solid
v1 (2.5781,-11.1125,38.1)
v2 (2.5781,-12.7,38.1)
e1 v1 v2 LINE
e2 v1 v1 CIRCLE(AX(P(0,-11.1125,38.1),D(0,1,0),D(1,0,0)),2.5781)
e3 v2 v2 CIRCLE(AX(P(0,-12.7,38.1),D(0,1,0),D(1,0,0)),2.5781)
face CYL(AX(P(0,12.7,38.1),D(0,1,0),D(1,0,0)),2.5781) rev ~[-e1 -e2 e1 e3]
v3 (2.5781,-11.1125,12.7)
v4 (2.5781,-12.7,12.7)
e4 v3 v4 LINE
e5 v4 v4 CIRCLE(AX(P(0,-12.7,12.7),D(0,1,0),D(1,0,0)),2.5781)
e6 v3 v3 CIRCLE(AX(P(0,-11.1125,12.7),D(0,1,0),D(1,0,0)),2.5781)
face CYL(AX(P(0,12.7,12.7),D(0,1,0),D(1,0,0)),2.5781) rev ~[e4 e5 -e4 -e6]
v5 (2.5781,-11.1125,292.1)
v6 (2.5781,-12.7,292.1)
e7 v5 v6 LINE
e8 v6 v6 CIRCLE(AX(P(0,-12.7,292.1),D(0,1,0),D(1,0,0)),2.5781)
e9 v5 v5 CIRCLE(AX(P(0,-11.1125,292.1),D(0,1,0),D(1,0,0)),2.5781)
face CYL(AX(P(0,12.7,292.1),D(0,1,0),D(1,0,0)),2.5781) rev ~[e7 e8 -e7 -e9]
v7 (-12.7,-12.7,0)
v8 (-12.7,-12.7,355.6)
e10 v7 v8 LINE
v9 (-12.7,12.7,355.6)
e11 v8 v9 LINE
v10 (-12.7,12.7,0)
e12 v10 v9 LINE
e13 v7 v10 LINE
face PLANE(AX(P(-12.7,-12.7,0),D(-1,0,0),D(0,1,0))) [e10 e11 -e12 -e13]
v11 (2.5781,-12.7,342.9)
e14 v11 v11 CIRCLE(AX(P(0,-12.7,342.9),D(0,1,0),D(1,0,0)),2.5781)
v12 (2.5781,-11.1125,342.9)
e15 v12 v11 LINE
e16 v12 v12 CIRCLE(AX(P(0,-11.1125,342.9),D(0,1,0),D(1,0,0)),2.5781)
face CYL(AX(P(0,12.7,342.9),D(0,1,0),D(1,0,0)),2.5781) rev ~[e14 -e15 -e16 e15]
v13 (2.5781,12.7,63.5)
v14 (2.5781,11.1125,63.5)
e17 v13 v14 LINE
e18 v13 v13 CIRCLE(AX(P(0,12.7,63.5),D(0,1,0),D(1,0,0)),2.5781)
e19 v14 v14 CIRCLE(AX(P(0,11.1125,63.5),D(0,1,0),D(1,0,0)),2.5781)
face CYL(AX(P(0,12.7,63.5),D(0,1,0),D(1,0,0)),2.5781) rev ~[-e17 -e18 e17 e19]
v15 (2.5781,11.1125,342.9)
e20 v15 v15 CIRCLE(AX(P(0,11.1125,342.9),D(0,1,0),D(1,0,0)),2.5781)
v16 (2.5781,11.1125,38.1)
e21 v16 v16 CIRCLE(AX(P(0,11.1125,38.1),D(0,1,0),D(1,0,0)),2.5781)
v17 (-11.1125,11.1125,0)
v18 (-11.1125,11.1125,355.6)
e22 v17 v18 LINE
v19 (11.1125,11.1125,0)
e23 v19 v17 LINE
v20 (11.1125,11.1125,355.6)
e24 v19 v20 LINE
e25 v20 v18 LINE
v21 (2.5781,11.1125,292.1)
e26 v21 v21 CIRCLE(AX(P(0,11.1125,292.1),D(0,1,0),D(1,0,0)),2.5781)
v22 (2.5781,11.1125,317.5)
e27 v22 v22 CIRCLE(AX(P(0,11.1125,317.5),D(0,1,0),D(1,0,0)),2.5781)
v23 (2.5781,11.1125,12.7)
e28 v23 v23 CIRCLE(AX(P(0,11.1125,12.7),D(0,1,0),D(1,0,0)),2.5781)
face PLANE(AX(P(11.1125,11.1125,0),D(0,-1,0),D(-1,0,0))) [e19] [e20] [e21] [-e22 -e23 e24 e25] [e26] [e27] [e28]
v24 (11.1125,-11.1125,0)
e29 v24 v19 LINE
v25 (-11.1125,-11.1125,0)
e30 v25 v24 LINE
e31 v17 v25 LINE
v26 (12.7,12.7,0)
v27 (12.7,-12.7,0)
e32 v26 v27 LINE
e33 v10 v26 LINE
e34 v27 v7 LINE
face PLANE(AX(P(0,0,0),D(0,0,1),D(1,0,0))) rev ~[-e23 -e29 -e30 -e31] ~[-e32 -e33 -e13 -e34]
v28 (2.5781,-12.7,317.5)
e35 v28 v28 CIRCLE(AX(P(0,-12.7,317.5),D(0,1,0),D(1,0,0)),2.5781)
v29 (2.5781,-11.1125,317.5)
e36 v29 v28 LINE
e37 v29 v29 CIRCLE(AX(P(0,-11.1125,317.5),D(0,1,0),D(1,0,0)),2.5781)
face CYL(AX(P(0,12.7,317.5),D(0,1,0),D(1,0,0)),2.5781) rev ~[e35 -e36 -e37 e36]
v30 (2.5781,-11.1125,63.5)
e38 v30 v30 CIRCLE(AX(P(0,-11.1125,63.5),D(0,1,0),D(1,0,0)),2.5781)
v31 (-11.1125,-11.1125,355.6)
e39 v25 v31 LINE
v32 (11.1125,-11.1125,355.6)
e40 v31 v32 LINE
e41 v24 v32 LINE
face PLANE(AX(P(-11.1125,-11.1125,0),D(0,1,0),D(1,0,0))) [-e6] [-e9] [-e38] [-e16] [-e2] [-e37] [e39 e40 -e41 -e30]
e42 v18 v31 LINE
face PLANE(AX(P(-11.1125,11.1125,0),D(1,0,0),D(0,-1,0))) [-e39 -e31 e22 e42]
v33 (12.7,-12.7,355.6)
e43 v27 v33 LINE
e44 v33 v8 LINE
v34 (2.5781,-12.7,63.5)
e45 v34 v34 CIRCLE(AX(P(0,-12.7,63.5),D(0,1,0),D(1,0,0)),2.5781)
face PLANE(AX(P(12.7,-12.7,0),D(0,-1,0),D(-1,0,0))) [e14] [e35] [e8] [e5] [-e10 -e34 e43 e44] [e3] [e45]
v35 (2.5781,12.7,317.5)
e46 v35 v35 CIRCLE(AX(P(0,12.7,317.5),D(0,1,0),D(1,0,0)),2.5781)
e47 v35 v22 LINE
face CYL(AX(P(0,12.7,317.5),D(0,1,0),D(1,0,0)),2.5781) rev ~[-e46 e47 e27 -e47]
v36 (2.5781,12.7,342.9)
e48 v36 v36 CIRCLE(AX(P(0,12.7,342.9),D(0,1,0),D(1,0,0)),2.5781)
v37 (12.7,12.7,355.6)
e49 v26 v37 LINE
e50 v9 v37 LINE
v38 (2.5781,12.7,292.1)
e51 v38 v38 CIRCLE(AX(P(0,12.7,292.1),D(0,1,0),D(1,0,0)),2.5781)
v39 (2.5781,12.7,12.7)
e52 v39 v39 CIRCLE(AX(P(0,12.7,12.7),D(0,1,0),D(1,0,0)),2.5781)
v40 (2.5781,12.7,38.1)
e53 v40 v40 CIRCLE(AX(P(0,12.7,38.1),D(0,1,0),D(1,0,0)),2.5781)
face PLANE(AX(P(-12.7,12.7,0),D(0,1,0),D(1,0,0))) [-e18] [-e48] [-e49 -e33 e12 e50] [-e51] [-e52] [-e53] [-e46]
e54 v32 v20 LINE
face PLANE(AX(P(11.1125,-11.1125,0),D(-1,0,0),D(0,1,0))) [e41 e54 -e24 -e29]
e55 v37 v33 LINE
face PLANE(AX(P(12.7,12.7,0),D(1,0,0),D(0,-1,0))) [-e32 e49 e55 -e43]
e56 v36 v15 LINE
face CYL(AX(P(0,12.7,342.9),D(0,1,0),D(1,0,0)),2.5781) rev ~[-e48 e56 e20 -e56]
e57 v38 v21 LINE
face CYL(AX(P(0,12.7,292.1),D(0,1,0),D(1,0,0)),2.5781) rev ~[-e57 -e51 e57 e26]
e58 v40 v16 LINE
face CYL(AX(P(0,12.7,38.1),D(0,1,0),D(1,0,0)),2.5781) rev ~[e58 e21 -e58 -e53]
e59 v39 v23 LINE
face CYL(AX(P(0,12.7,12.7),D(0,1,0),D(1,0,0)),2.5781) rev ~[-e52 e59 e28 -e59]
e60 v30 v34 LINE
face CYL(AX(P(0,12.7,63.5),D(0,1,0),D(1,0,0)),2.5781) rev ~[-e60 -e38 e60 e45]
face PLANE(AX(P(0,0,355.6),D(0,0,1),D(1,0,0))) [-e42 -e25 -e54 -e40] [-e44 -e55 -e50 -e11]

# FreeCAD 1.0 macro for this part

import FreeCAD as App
import Part
import Sketcher
from FreeCAD import Vector
Q = App.Units.Quantity

doc = App.newDocument("Part")
params = doc.addObject("Spreadsheet::Sheet", "Params")
for row, (alias, value) in enumerate([
    ("sketch1_width", "1 in"),
    ("pad1_length", "14 in"),
    ("sketch2_diameter", "0.203 in"),
], start=1):
    params.set(f"A{row}", alias)
    params.set(f"B{row}", "=" + value)
    params.setAlias(f"B{row}", alias)

body = doc.addObject("PartDesign::Body", "Body")

# Sketch on XY plane
sketch1 = doc.addObject("Sketcher::SketchObject", "Sketch")
body.addObject(sketch1)
sketch1.AttachmentSupport = (doc.XY_Plane, [""])
sketch1.MapMode = "FlatFace"
sketch1.addGeometry([
    Part.LineSegment(Vector(-13, 13, 0), Vector(-13, -13, 0)),  # 0
    Part.LineSegment(Vector(-13, -13, 0), Vector(13, -13, 0)),  # 1
    Part.LineSegment(Vector(13, -13, 0), Vector(13, 13, 0)),  # 2
    Part.LineSegment(Vector(13, 13, 0), Vector(-13, 13, 0)),  # 3
    Part.LineSegment(Vector(-11, 11, 0), Vector(11, 11, 0)),  # 4
    Part.LineSegment(Vector(11, 11, 0), Vector(11, -11, 0)),  # 5
    Part.LineSegment(Vector(11, -11, 0), Vector(-11, -11, 0)),  # 6
    Part.LineSegment(Vector(-11, -11, 0), Vector(-11, 11, 0)),  # 7
], False)
sketch1.addConstraint([
    Sketcher.Constraint("Coincident", 0, 2, 1, 1),
    Sketcher.Constraint("Coincident", 1, 2, 2, 1),
    Sketcher.Constraint("Coincident", 2, 2, 3, 1),
    Sketcher.Constraint("Coincident", 3, 2, 0, 1),
    Sketcher.Constraint("Coincident", 4, 2, 5, 1),
    Sketcher.Constraint("Coincident", 5, 2, 6, 1),
    Sketcher.Constraint("Coincident", 6, 2, 7, 1),
    Sketcher.Constraint("Coincident", 7, 2, 4, 1),
    Sketcher.Constraint("Vertical", 0),
    Sketcher.Constraint("Horizontal", 1),
    Sketcher.Constraint("Vertical", 2),
    Sketcher.Constraint("Horizontal", 3),
    Sketcher.Constraint("Horizontal", 4),
    Sketcher.Constraint("Vertical", 5),
    Sketcher.Constraint("Horizontal", 6),
    Sketcher.Constraint("Vertical", 7),
    Sketcher.Constraint("Symmetric", 0, 2, 2, 2, -1, 1),
    Sketcher.Constraint("Symmetric", 4, 2, 6, 2, -1, 1),
    Sketcher.Constraint("Equal", 3, 0),
    Sketcher.Constraint("Equal", 6, 5),
    Sketcher.Constraint("DistanceX", 1, 1, 1, 2, Q("1 in")),
    Sketcher.Constraint("DistanceX", 4, 2, 2, 2, Q("0.0625 in")),
])
sketch1.setExpression("Constraints[20]", "Params.sketch1_width")
pad1 = doc.addObject("PartDesign::Pad", "Pad")
body.addObject(pad1)
pad1.Profile = sketch1
pad1.setExpression("Length", "Params.pad1_length")

# Sketch on XZ plane
sketch2 = doc.addObject("Sketcher::SketchObject", "Sketch001")
body.addObject(sketch2)
sketch2.AttachmentSupport = (doc.XZ_Plane, [""])
sketch2.MapMode = "FlatFace"
sketch2.AttachmentOffset = App.Placement(Vector(0, 0, -0.5 * 25.4), App.Rotation())
sketch2.addGeometry([
    Part.Circle(Vector(0, 12.7, 0), Vector(0, 0, 1), 2.6),  # 0
    Part.Circle(Vector(0, 38.1, 0), Vector(0, 0, 1), 2.6),  # 1
    Part.Circle(Vector(0, 63.5, 0), Vector(0, 0, 1), 2.6),  # 2
    Part.Circle(Vector(0, 342.9, 0), Vector(0, 0, 1), 2.6),  # 3
    Part.Circle(Vector(0, 317.5, 0), Vector(0, 0, 1), 2.6),  # 4
    Part.Circle(Vector(0, 292.1, 0), Vector(0, 0, 1), 2.6),  # 5
], False)
sketch2.addConstraint([
    Sketcher.Constraint("Equal", 0, 1),
    Sketcher.Constraint("Equal", 1, 2),
    Sketcher.Constraint("Equal", 2, 3),
    Sketcher.Constraint("Equal", 3, 4),
    Sketcher.Constraint("Equal", 4, 5),
    Sketcher.Constraint("PointOnObject", 0, 3, -2),
    Sketcher.Constraint("PointOnObject", 1, 3, -2),
    Sketcher.Constraint("PointOnObject", 2, 3, -2),
    Sketcher.Constraint("PointOnObject", 3, 3, -2),
    Sketcher.Constraint("PointOnObject", 4, 3, -2),
    Sketcher.Constraint("PointOnObject", 5, 3, -2),
    Sketcher.Constraint("Diameter", 0, Q("0.203 in")),
    Sketcher.Constraint("DistanceY", 0, 3, 1, 3, Q("1 in")),
    Sketcher.Constraint("DistanceY", 1, 3, 2, 3, Q("1 in")),
    Sketcher.Constraint("DistanceY", 4, 3, 3, 3, Q("1 in")),
    Sketcher.Constraint("DistanceY", 5, 3, 4, 3, Q("1 in")),
    Sketcher.Constraint("DistanceY", -1, 1, 0, 3, Q("0.5 in")),
    Sketcher.Constraint("DistanceY", 2, 3, 3, 3, Q("11 in")),
])
sketch2.setExpression("Constraints[11]", "Params.sketch2_diameter")
pocket1 = doc.addObject("PartDesign::Pocket", "Pocket")
body.addObject(pocket1)
pocket1.Profile = sketch2
pocket1.Type = "ThroughAll"
pocket1.Reversed = True

doc.recompute()
